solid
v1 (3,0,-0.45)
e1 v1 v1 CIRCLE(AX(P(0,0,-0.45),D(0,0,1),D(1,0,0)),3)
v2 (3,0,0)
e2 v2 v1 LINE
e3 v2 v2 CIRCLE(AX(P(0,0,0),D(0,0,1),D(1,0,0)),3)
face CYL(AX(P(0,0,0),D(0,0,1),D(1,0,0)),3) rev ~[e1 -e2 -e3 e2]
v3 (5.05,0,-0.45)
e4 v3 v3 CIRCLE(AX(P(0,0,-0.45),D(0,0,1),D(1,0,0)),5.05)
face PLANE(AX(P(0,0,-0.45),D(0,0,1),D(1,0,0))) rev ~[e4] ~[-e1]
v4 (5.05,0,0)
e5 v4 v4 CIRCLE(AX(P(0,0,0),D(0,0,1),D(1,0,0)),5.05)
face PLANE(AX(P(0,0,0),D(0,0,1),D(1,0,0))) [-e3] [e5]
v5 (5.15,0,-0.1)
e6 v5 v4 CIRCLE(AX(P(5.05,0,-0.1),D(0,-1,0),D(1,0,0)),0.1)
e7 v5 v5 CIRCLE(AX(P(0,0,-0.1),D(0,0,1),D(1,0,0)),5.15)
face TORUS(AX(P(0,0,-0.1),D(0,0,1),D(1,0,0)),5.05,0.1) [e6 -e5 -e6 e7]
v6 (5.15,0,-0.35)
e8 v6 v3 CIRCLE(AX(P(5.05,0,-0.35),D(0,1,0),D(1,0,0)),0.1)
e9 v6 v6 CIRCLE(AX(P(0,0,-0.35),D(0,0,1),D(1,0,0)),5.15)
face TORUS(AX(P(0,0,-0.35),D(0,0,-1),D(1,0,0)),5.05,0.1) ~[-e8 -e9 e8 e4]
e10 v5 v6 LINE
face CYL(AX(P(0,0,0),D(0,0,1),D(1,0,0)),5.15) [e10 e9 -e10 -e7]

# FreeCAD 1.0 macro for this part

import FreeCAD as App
import Part
import Sketcher
from FreeCAD import Vector
Q = App.Units.Quantity


def edges_at(feature, points):
    """Names of the edges that pass closest to the given points."""
    edges = feature.Shape.Edges
    near = lambda p: min(range(len(edges)), key=lambda i: edges[i].distToShape(Part.Vertex(*p))[0])
    return sorted({f"Edge{near(p) + 1}" for p in points})

doc = App.newDocument("Part")
body = doc.addObject("PartDesign::Body", "Body")

# Sketch on XY plane
sketch1 = doc.addObject("Sketcher::SketchObject", "Sketch")
body.addObject(sketch1)
sketch1.AttachmentSupport = (doc.XY_Plane, [""])
sketch1.MapMode = "FlatFace"
sketch1.addGeometry([
    Part.Circle(Vector(0, 0, 0), Vector(0, 0, 1), 5.2),
    Part.Circle(Vector(0, 0, 0), Vector(0, 0, 1), 3),
], False)
sketch1.addConstraint([
    Sketcher.Constraint("Coincident", 0, 3, -1, 1),
    Sketcher.Constraint("Coincident", 1, 3, -1, 1),
    Sketcher.Constraint("Diameter", 1, Q("6 mm")),
    Sketcher.Constraint("Diameter", 0, Q("10.3 mm")),
])
pad1 = doc.addObject("PartDesign::Pad", "Pad")
body.addObject(pad1)
pad1.Profile = sketch1
pad1.Length = 0.45
pad1.Reversed = True
doc.recompute()

fillet = doc.addObject("PartDesign::Fillet", "Fillet")
body.addObject(fillet)
fillet.Base = (pad1, edges_at(pad1, [(-5.15, 0, 0), (-5.15, 0, -0.45)]))
fillet.Radius = 0.1

doc.recompute()
